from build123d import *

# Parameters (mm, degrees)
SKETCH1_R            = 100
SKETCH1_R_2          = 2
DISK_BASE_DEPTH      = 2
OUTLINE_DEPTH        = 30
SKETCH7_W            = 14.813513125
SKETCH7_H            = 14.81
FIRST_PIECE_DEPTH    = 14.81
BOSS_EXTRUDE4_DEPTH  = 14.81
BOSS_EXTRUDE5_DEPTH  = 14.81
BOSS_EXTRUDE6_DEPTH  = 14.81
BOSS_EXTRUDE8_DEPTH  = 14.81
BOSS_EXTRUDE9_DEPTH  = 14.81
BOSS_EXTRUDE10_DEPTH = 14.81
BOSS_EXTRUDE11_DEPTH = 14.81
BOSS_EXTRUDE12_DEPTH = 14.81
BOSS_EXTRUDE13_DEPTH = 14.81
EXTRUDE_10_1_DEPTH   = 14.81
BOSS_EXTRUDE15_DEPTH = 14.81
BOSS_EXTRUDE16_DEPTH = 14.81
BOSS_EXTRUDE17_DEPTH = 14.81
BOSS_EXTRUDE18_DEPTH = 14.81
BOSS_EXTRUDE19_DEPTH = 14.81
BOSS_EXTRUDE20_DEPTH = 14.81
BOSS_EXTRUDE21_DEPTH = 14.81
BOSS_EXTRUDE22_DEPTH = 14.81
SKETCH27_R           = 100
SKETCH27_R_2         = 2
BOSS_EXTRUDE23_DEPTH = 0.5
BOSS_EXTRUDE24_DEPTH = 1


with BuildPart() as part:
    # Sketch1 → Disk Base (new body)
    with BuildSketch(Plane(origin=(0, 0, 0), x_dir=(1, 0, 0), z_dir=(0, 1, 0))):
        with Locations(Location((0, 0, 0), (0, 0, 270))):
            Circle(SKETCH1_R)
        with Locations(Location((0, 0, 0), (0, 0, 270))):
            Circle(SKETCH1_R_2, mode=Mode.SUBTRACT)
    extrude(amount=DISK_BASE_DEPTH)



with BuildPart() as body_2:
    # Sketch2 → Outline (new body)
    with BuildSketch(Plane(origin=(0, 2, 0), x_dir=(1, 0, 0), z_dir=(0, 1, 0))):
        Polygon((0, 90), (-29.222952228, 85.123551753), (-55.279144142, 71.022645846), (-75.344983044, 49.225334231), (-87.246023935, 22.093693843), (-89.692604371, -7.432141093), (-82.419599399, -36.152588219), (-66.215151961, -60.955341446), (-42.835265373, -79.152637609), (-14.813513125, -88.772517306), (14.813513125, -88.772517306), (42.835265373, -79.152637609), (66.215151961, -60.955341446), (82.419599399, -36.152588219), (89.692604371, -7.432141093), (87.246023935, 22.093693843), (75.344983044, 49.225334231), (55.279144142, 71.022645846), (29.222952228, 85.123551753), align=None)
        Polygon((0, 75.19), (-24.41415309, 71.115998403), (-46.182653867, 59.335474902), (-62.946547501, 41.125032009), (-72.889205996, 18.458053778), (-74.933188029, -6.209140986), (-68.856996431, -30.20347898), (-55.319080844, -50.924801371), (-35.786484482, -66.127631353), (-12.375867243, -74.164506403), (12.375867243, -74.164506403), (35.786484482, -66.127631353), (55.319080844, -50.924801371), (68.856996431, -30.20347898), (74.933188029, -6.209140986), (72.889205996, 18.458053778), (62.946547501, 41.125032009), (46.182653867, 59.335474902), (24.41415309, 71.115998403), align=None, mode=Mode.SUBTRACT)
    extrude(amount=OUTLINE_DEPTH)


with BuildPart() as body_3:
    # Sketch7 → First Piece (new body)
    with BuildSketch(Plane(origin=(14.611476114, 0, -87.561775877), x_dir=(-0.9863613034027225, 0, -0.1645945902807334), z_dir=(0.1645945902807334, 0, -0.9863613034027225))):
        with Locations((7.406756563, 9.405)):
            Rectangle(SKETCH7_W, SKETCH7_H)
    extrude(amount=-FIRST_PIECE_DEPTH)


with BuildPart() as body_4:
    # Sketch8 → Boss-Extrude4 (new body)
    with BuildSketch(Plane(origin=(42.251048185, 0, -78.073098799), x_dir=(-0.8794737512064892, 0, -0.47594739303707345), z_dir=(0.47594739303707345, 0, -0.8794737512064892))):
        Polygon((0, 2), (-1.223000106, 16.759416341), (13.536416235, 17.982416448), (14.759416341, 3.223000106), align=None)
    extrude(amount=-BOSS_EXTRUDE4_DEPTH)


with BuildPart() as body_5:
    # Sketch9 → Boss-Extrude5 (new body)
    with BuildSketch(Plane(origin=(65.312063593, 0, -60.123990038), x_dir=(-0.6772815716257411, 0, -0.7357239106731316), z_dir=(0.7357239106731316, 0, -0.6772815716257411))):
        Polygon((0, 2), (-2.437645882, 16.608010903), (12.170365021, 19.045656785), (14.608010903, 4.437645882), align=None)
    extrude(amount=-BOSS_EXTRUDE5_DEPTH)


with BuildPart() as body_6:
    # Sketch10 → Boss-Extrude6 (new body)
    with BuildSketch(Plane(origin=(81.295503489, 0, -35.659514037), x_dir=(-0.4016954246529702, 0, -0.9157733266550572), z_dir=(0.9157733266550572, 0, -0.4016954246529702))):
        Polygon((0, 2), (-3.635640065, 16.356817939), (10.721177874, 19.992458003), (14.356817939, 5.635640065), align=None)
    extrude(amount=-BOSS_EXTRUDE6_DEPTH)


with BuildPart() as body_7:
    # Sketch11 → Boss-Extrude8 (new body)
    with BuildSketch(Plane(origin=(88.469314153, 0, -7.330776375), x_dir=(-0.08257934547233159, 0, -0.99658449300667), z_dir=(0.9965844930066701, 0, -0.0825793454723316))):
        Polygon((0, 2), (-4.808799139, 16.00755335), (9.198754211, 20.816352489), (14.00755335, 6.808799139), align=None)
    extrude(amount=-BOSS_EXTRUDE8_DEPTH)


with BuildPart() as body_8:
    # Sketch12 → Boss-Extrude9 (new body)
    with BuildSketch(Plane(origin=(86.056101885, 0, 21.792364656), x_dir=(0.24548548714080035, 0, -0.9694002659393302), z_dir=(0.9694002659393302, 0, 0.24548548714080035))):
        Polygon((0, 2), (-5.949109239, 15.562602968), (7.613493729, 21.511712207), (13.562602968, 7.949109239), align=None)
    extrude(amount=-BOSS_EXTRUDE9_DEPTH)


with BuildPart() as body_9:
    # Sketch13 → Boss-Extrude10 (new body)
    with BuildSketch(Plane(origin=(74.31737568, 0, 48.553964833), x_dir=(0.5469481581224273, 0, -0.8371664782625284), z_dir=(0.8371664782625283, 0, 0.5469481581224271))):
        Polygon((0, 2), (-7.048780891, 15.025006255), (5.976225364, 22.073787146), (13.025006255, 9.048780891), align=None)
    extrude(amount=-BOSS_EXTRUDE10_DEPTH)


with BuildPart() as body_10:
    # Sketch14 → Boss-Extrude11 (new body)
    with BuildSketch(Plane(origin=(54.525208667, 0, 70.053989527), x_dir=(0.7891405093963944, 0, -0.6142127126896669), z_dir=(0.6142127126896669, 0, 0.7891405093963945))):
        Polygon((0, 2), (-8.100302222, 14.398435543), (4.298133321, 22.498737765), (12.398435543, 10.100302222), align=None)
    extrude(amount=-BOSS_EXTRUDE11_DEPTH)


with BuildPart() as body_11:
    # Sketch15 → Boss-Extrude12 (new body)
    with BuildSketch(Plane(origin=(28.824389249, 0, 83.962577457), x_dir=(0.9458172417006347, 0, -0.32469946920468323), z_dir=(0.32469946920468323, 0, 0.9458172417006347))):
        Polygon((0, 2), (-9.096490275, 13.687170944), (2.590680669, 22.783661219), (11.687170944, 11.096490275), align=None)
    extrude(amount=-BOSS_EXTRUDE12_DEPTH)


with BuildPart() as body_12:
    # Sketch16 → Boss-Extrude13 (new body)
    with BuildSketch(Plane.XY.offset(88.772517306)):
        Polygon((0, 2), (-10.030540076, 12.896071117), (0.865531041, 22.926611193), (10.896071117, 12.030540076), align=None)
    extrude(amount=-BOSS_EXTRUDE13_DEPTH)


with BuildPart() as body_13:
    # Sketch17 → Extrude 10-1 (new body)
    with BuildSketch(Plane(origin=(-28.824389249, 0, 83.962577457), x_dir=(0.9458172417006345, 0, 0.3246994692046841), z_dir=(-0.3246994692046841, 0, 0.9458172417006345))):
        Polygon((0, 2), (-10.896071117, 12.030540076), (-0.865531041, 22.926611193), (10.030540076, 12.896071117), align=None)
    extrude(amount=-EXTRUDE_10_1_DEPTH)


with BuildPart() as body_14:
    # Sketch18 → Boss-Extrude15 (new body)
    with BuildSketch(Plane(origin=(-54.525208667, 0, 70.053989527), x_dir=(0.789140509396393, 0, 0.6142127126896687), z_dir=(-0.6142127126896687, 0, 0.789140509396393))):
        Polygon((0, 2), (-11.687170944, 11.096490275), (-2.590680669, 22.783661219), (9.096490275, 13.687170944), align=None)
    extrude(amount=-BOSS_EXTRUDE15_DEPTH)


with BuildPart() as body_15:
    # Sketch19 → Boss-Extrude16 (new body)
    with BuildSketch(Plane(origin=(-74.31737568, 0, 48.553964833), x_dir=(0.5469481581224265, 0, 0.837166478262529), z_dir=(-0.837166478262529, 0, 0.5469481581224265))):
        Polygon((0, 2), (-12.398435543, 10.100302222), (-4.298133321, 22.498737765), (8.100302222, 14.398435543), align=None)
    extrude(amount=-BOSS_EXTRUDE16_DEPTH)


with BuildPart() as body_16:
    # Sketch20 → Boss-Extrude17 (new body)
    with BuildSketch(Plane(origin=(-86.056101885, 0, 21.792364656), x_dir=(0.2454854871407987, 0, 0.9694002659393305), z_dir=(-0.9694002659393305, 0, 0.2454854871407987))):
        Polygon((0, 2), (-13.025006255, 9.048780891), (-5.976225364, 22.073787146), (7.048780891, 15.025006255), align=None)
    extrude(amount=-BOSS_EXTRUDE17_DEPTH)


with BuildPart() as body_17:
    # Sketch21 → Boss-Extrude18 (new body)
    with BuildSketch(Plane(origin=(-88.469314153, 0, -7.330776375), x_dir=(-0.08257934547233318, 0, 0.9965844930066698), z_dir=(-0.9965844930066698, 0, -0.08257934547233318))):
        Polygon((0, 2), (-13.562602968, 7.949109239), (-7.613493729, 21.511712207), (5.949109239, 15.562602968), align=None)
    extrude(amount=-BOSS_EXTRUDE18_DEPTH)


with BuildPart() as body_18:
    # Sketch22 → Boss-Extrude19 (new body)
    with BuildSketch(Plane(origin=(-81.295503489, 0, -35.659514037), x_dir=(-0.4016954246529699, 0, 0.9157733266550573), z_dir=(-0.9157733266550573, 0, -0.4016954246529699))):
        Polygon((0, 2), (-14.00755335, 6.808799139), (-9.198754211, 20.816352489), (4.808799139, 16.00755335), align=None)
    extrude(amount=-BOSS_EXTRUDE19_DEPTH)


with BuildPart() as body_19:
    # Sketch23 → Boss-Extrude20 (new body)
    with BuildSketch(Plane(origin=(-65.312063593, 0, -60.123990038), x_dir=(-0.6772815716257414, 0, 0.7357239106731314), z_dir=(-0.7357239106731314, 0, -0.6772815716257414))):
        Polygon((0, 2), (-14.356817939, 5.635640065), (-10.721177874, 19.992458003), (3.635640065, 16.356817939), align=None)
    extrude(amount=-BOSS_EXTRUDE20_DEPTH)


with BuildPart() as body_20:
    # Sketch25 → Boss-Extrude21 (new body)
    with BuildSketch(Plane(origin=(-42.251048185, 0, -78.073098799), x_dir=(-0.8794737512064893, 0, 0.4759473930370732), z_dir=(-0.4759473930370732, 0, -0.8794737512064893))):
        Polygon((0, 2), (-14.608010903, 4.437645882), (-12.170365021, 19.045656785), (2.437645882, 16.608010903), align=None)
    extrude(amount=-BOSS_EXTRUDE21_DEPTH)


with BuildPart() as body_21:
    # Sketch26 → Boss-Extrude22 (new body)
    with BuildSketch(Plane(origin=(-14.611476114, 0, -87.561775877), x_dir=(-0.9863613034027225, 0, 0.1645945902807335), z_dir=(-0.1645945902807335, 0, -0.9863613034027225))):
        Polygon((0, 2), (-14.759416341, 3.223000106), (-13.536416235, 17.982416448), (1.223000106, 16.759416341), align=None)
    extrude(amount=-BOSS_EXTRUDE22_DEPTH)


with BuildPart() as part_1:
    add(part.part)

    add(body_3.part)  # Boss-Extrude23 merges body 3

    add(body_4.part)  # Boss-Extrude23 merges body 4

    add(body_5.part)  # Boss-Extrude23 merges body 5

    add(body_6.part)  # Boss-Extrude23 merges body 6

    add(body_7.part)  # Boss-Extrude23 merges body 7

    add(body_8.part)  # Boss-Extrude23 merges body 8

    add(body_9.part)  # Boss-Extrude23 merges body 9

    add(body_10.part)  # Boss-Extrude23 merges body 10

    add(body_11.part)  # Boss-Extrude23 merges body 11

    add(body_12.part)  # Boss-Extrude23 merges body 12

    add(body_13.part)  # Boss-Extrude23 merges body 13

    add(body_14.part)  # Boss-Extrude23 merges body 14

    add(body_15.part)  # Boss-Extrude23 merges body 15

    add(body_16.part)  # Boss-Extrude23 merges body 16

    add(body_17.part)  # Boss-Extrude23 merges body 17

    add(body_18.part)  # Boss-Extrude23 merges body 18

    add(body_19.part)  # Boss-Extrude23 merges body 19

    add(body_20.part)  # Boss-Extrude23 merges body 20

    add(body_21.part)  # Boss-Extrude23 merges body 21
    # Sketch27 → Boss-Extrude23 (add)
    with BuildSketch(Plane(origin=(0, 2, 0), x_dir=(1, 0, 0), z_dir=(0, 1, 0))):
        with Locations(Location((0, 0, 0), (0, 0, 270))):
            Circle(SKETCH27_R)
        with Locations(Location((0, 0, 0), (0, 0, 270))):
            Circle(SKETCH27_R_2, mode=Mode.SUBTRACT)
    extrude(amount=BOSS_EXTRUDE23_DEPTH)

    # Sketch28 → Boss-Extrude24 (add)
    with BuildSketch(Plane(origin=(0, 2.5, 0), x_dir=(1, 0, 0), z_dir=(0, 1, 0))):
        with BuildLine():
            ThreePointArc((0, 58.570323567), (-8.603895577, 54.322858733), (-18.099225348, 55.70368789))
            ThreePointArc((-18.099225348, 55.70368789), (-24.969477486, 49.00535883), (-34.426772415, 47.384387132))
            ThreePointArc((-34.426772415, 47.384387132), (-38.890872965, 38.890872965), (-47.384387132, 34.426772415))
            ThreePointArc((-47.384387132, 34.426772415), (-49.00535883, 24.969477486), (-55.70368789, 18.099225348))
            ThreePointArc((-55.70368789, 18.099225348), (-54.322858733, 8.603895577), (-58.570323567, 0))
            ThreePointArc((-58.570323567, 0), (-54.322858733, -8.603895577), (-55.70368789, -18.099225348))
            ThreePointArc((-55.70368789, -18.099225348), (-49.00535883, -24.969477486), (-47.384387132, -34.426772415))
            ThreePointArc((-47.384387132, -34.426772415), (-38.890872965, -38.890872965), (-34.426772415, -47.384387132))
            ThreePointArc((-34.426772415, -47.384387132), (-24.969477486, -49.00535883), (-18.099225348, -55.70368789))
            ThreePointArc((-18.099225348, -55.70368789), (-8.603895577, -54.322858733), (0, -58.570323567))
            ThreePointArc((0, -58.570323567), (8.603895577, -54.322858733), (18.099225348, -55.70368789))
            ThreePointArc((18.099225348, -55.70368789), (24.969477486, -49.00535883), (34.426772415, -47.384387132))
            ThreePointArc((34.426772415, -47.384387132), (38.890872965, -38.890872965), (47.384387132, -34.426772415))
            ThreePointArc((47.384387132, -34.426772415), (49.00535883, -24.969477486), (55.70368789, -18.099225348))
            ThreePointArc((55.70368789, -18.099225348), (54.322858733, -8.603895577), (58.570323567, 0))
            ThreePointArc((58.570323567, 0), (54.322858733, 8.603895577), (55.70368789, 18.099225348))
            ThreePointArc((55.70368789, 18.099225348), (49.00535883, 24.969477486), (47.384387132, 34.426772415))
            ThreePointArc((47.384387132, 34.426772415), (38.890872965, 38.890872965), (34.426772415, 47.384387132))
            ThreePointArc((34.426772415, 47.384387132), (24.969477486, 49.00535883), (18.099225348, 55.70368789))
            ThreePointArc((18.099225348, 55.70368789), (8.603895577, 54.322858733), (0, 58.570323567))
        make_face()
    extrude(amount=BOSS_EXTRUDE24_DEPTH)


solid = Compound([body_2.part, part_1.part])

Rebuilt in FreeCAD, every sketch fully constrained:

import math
import FreeCAD as App
import Part
import Sketcher
from FreeCAD import Vector


def add_polygon(sketch, points):
    """Adds a closed chain of lines whose ends are joined by coincident constraints."""
    first, n = sketch.GeometryCount, len(points)
    for a, b in zip(points, points[1:] + points[:1]):
        sketch.addGeometry(Part.LineSegment(App.Vector(*a, 0), App.Vector(*b, 0)), False)
    for i in range(n):
        sketch.addConstraint(Sketcher.Constraint("Coincident", first + i, 2, first + (i + 1) % n, 1))

doc = App.newDocument("Part")
body = doc.addObject("PartDesign::Body", "Body")

# Sketch on XZ plane
sketch1 = body.newObject("Sketcher::SketchObject", "Sketch")
sketch1.AttachmentSupport = (doc.getObject("XZ_Plane"), [""])
sketch1.MapMode = "FlatFace"
sketch1.addGeometry([
    Part.Circle(Vector(0, 0, 0), Vector(0, 0, 1), 100),
    Part.Circle(Vector(0, 0, 0), Vector(0, 0, 1), 2),
], False)
sketch1.addConstraint([
    Sketcher.Constraint("Coincident", 0, 3, -1, 1),
    Sketcher.Constraint("Coincident", 1, 3, -1, 1),
    Sketcher.Constraint("Diameter", 0, 200.0),
    Sketcher.Constraint("Diameter", 1, 4.0),
])
pad1 = body.newObject("PartDesign::Pad", "Pad")
pad1.Profile = sketch1
pad1.Length = 2
pad1.Reversed = True
body2 = doc.addObject("PartDesign::Body", "Body001")

# Sketch on XZ plane
sketch2 = body2.newObject("Sketcher::SketchObject", "Sketch001")
sketch2.AttachmentSupport = (doc.getObject("XZ_Plane001"), [""])
sketch2.MapMode = "FlatFace"
sketch2.AttachmentOffset = App.Placement(Vector(0, 0, -2), App.Rotation())
add_polygon(sketch2, [(0, -90), (-29, -85), (-55, -71), (-75, -49), (-87, -22), (-90, 7), (-82, 36), (-66, 61), (-43, 79), (-15, 89), (15, 89), (43, 79), (66, 61), (82, 36), (90, 7), (87, -22), (75, -49), (55, -71), (29, -85)])  # lines 0-18
add_polygon(sketch2, [(-24, -71), (0, -75), (24, -71), (46, -59), (63, -41), (73, -18), (75, 6), (69, 30), (55, 51), (36, 66), (12, 74), (-12, 74), (-36, 66), (-55, 51), (-69, 30), (-75, 6), (-73, -18), (-63, -41), (-46, -59)])  # lines 19-37
sketch2.addConstraint([
    Sketcher.Constraint("Horizontal", 9),
    Sketcher.Constraint("Horizontal", 29),
    Sketcher.Constraint("Symmetric", 7, 2, 10, 2, -2),
    Sketcher.Constraint("Symmetric", 6, 2, 11, 2, -2),
    Sketcher.Constraint("Symmetric", 5, 2, 12, 2, -2),
    Sketcher.Constraint("Symmetric", 4, 2, 13, 2, -2),
    Sketcher.Constraint("Symmetric", 3, 2, 14, 2, -2),
    Sketcher.Constraint("Symmetric", 2, 2, 15, 2, -2),
    Sketcher.Constraint("Symmetric", 1, 2, 16, 2, -2),
    Sketcher.Constraint("Symmetric", 0, 2, 17, 2, -2),
    Sketcher.Constraint("Symmetric", 27, 2, 30, 2, -2),
    Sketcher.Constraint("Symmetric", 26, 2, 31, 2, -2),
    Sketcher.Constraint("Symmetric", 25, 2, 32, 2, -2),
    Sketcher.Constraint("Symmetric", 24, 2, 33, 2, -2),
    Sketcher.Constraint("Symmetric", 23, 2, 34, 2, -2),
    Sketcher.Constraint("Symmetric", 22, 2, 35, 2, -2),
    Sketcher.Constraint("Symmetric", 21, 2, 36, 2, -2),
    Sketcher.Constraint("Symmetric", 20, 2, 37, 2, -2),
    Sketcher.Constraint("PointOnObject", 18, 2, -2),
    Sketcher.Constraint("PointOnObject", 19, 2, -2),
    Sketcher.Constraint("Parallel", 0, 19),
    Sketcher.Constraint("Parallel", 17, 21),
    Sketcher.Constraint("Parallel", 16, 22),
    Sketcher.Constraint("Parallel", 15, 23),
    Sketcher.Constraint("Parallel", 14, 24),
    Sketcher.Constraint("Parallel", 13, 25),
    Sketcher.Constraint("Parallel", 12, 26),
    Sketcher.Constraint("Parallel", 11, 27),
    Sketcher.Constraint("Parallel", 10, 28),
    Sketcher.Constraint("Parallel", 8, 30),
    Sketcher.Constraint("Equal", 0, 1),
    Sketcher.Constraint("Equal", 1, 2),
    Sketcher.Constraint("Equal", 2, 3),
    Sketcher.Constraint("Equal", 3, 4),
    Sketcher.Constraint("Equal", 4, 5),
    Sketcher.Constraint("Equal", 5, 6),
    Sketcher.Constraint("Equal", 6, 7),
    Sketcher.Constraint("Equal", 7, 8),
    Sketcher.Constraint("Equal", 8, 10),
    Sketcher.Constraint("Equal", 20, 21),
    Sketcher.Constraint("Equal", 21, 22),
    Sketcher.Constraint("Equal", 22, 23),
    Sketcher.Constraint("Equal", 23, 24),
    Sketcher.Constraint("Equal", 24, 25),
    Sketcher.Constraint("Equal", 25, 26),
    Sketcher.Constraint("Equal", 26, 27),
    Sketcher.Constraint("Equal", 27, 28),
    Sketcher.Constraint("DistanceY", 18, 2, -1, 1, 90.0),
    Sketcher.Constraint("DistanceY", 19, 2, -1, 1, 75.19),
    Sketcher.Constraint("DistanceY", 20, 2, -1, 1, 71.115998),
    Sketcher.Constraint("DistanceY", 24, 2, 13, 2, 1.223),
    Sketcher.Constraint("DistanceX", 5, 2, -1, 1, 82.419599),
    Sketcher.Constraint("DistanceY", -1, 1, 26, 2, 50.924801),
    Sketcher.Constraint("DistanceY", 4, 2, 6, 2, 53.5232),
    Sketcher.Constraint("DistanceX", 20, 2, 17, 2, 4.808799),
    Sketcher.Constraint("DistanceX", 20, 2, 21, 2, 21.768501),
    Sketcher.Constraint("DistanceX", 23, 2, 13, 2, 16.803398),
    Sketcher.Constraint("DistanceX", 28, 2, 10, 2, 30.459398),
    Sketcher.Constraint("DistanceX", 9, 1, 9, 2, 29.627026),
    Sketcher.Constraint("DistanceY", -1, 1, 5, 2, 36.152588),
])
pad2 = body2.newObject("PartDesign::Pad", "Pad001")
pad2.Profile = sketch2
pad2.Length = 30
pad2.Reversed = True
body3 = doc.addObject("PartDesign::Body", "Body002")

# Sketch on an angled plane
sketch3 = body3.newObject("Sketcher::SketchObject", "Sketch002")
sketch3.Placement = App.Placement(Vector(14.611476, 0, -87.561776), App.Rotation(Vector(-0.986361303, 0, -0.16459459), Vector(0, 0.999999999, 0), Vector(0.16459459, 0, -0.986361303), "ZXY"))
add_polygon(sketch3, [(0, 17), (0, 2), (15, 2), (15, 17)])  # lines 0-3
sketch3.addConstraint([
    Sketcher.Constraint("Vertical", 0),
    Sketcher.Constraint("Horizontal", 1),
    Sketcher.Constraint("Vertical", 2),
    Sketcher.Constraint("Horizontal", 3),
    Sketcher.Constraint("PointOnObject", 0, 2, -2),
    Sketcher.Constraint("DistanceY", -1, 1, 0, 2, 2.0),
    Sketcher.Constraint("DistanceY", 0, 2, 0, 1, 14.81),
    Sketcher.Constraint("DistanceX", 1, 1, 1, 2, 14.813513),
])
pad3 = body3.newObject("PartDesign::Pad", "Pad002")
pad3.Profile = sketch3
pad3.Length = 14.81
pad3.Reversed = True
body4 = doc.addObject("PartDesign::Body", "Body003")

# Sketch on an angled plane
sketch4 = body4.newObject("Sketcher::SketchObject", "Sketch003")
sketch4.Placement = App.Placement(Vector(42.251048, 0, -78.073099), App.Rotation(Vector(-0.879473751, 0, -0.475947393), Vector(0, 1, 0), Vector(0.475947393, 0, -0.879473751), "ZXY"))
add_polygon(sketch4, [(-1, 17), (0, 2), (15, 3), (14, 18)])  # lines 0-3
sketch4.addConstraint([
    Sketcher.Constraint("PointOnObject", 0, 2, -2),
    Sketcher.Constraint("Perpendicular", 0, 1),
    Sketcher.Constraint("Perpendicular", 1, 2),
    Sketcher.Constraint("Perpendicular", 2, 3),
    Sketcher.Constraint("Equal", 0, 1),
    Sketcher.Constraint("DistanceY", -1, 1, 0, 2, 2.0),
    Sketcher.Constraint("Distance", 0, 14.81),
    Sketcher.Constraint("DistanceY", -1, 1, 1, 2, 3.223),
])
pad4 = body4.newObject("PartDesign::Pad", "Pad003")
pad4.Profile = sketch4
pad4.Length = 14.81
pad4.Reversed = True
body5 = doc.addObject("PartDesign::Body", "Body004")

# Sketch on an angled plane
sketch5 = body5.newObject("Sketcher::SketchObject", "Sketch004")
sketch5.Placement = App.Placement(Vector(65.312064, 0, -60.12399), App.Rotation(Vector(-0.677281572, 0, -0.735723911), Vector(0, 1.000000001, 0), Vector(0.735723911, 0, -0.677281572), "ZXY"))
add_polygon(sketch5, [(-2, 17), (0, 2), (15, 4), (12, 19)])  # lines 0-3
sketch5.addConstraint([
    Sketcher.Constraint("PointOnObject", 0, 2, -2),
    Sketcher.Constraint("Perpendicular", 0, 1),
    Sketcher.Constraint("Perpendicular", 1, 2),
    Sketcher.Constraint("Perpendicular", 2, 3),
    Sketcher.Constraint("Equal", 0, 1),
    Sketcher.Constraint("DistanceY", -1, 1, 0, 2, 2.0),
    Sketcher.Constraint("Distance", 0, 14.81),
    Sketcher.Constraint("DistanceX", -1, 1, 1, 2, 14.608011),
])
pad5 = body5.newObject("PartDesign::Pad", "Pad004")
pad5.Profile = sketch5
pad5.Length = 14.81
pad5.Reversed = True
body6 = doc.addObject("PartDesign::Body", "Body005")

# Sketch on an angled plane
sketch6 = body6.newObject("Sketcher::SketchObject", "Sketch005")
sketch6.Placement = App.Placement(Vector(81.295503, 0, -35.659514), App.Rotation(Vector(-0.401695425, 0, -0.915773327), Vector(0, 1.000000001, 0), Vector(0.915773327, 0, -0.401695425), "ZXY"))
add_polygon(sketch6, [(-4, 16), (0, 2), (14, 6), (11, 20)])  # lines 0-3
sketch6.addConstraint([
    Sketcher.Constraint("PointOnObject", 0, 2, -2),
    Sketcher.Constraint("Perpendicular", 0, 1),
    Sketcher.Constraint("Perpendicular", 1, 2),
    Sketcher.Constraint("Perpendicular", 2, 3),
    Sketcher.Constraint("Equal", 0, 1),
    Sketcher.Constraint("DistanceY", -1, 1, 0, 2, 2.0),
    Sketcher.Constraint("Distance", 0, 14.81),
    Sketcher.Constraint("DistanceY", -1, 1, 1, 2, 5.63564),
])
pad6 = body6.newObject("PartDesign::Pad", "Pad005")
pad6.Profile = sketch6
pad6.Length = 14.81
pad6.Reversed = True
body7 = doc.addObject("PartDesign::Body", "Body006")

# Sketch on an angled plane
sketch7 = body7.newObject("Sketcher::SketchObject", "Sketch006")
sketch7.Placement = App.Placement(Vector(88.469314, 0, -7.330776), App.Rotation(Vector(-0.082579345, 0, -0.996584493), Vector(0, 1, 0), Vector(0.996584493, 0, -0.082579345), "ZXY"))
add_polygon(sketch7, [(-5, 16), (0, 2), (14, 7), (9, 21)])  # lines 0-3
sketch7.addConstraint([
    Sketcher.Constraint("PointOnObject", 0, 2, -2),
    Sketcher.Constraint("Perpendicular", 0, 1),
    Sketcher.Constraint("Perpendicular", 1, 2),
    Sketcher.Constraint("Perpendicular", 2, 3),
    Sketcher.Constraint("Equal", 0, 1),
    Sketcher.Constraint("DistanceY", -1, 1, 0, 2, 2.0),
    Sketcher.Constraint("Distance", 0, 14.81),
    Sketcher.Constraint("DistanceY", -1, 1, 1, 2, 6.808799),
])
pad7 = body7.newObject("PartDesign::Pad", "Pad006")
pad7.Profile = sketch7
pad7.Length = 14.81
pad7.Reversed = True
body8 = doc.addObject("PartDesign::Body", "Body007")

# Sketch on an angled plane
sketch8 = body8.newObject("Sketcher::SketchObject", "Sketch007")
sketch8.Placement = App.Placement(Vector(86.056102, 0, 21.792365), App.Rotation(Vector(0.245485487, 0, -0.969400266), Vector(0, 1, 0), Vector(0.969400266, 0, 0.245485487), "ZXY"))
add_polygon(sketch8, [(-6, 16), (0, 2), (14, 8), (8, 22)])  # lines 0-3
sketch8.addConstraint([
    Sketcher.Constraint("PointOnObject", 0, 2, -2),
    Sketcher.Constraint("Perpendicular", 0, 1),
    Sketcher.Constraint("Perpendicular", 1, 2),
    Sketcher.Constraint("Perpendicular", 2, 3),
    Sketcher.Constraint("Equal", 0, 1),
    Sketcher.Constraint("DistanceY", -1, 1, 0, 2, 2.0),
    Sketcher.Constraint("Distance", 0, 14.81),
    Sketcher.Constraint("DistanceY", -1, 1, 1, 2, 7.949109),
])
pad8 = body8.newObject("PartDesign::Pad", "Pad007")
pad8.Profile = sketch8
pad8.Length = 14.81
pad8.Reversed = True
body9 = doc.addObject("PartDesign::Body", "Body008")

# Sketch on an angled plane
sketch9 = body9.newObject("Sketcher::SketchObject", "Sketch008")
sketch9.Placement = App.Placement(Vector(74.317376, 0, 48.553965), App.Rotation(Vector(0.546948158, 0, -0.837166478), Vector(0, 0.999999999, 0), Vector(0.837166478, 0, 0.546948158), "ZXY"))
add_polygon(sketch9, [(-7, 15), (0, 2), (13, 9), (6, 22)])  # lines 0-3
sketch9.addConstraint([
    Sketcher.Constraint("PointOnObject", 0, 2, -2),
    Sketcher.Constraint("Perpendicular", 0, 1),
    Sketcher.Constraint("Perpendicular", 1, 2),
    Sketcher.Constraint("Perpendicular", 2, 3),
    Sketcher.Constraint("Equal", 0, 1),
    Sketcher.Constraint("DistanceY", -1, 1, 0, 2, 2.0),
    Sketcher.Constraint("Distance", 0, 14.81),
    Sketcher.Constraint("DistanceY", -1, 1, 1, 2, 9.048781),
])
pad9 = body9.newObject("PartDesign::Pad", "Pad008")
pad9.Profile = sketch9
pad9.Length = 14.81
pad9.Reversed = True
body10 = doc.addObject("PartDesign::Body", "Body009")

# Sketch on an angled plane
sketch10 = body10.newObject("Sketcher::SketchObject", "Sketch009")
sketch10.Placement = App.Placement(Vector(54.525209, 0, 70.05399), App.Rotation(Vector(0.789140509, 0, -0.614212713), Vector(0, 1, 0), Vector(0.614212713, 0, 0.789140509), "ZXY"))
add_polygon(sketch10, [(-8, 14), (0, 2), (12, 10), (4, 22)])  # lines 0-3
sketch10.addConstraint([
    Sketcher.Constraint("PointOnObject", 0, 2, -2),
    Sketcher.Constraint("Perpendicular", 0, 1),
    Sketcher.Constraint("Perpendicular", 1, 2),
    Sketcher.Constraint("Perpendicular", 2, 3),
    Sketcher.Constraint("Equal", 0, 1),
    Sketcher.Constraint("DistanceY", -1, 1, 0, 2, 2.0),
    Sketcher.Constraint("Distance", 0, 14.81),
    Sketcher.Constraint("DistanceX", -1, 1, 1, 2, 12.398436),
])
pad10 = body10.newObject("PartDesign::Pad", "Pad009")
pad10.Profile = sketch10
pad10.Length = 14.81
pad10.Reversed = True
body11 = doc.addObject("PartDesign::Body", "Body010")

# Sketch on an angled plane
sketch11 = body11.newObject("Sketcher::SketchObject", "Sketch010")
sketch11.Placement = App.Placement(Vector(28.824389, 0, 83.962577), App.Rotation(Vector(0.945817242, 0, -0.324699469), Vector(0, 1, 0), Vector(0.324699469, 0, 0.945817242), "ZXY"))
add_polygon(sketch11, [(-9, 14), (0, 2), (12, 11), (3, 23)])  # lines 0-3
sketch11.addConstraint([
    Sketcher.Constraint("PointOnObject", 0, 2, -2),
    Sketcher.Constraint("Perpendicular", 0, 1),
    Sketcher.Constraint("Perpendicular", 1, 2),
    Sketcher.Constraint("Perpendicular", 2, 3),
    Sketcher.Constraint("Equal", 0, 1),
    Sketcher.Constraint("DistanceY", -1, 1, 0, 2, 2.0),
    Sketcher.Constraint("Distance", 0, 14.81),
    Sketcher.Constraint("DistanceX", -1, 1, 1, 2, 11.687171),
])
pad11 = body11.newObject("PartDesign::Pad", "Pad010")
pad11.Profile = sketch11
pad11.Length = 14.81
pad11.Reversed = True
body12 = doc.addObject("PartDesign::Body", "Body011")

# Sketch on XY plane
sketch12 = body12.newObject("Sketcher::SketchObject", "Sketch011")
sketch12.AttachmentSupport = (doc.getObject("XY_Plane011"), [""])
sketch12.MapMode = "FlatFace"
sketch12.AttachmentOffset = App.Placement(Vector(0, 0, 88.772517), App.Rotation())
add_polygon(sketch12, [(-10, 13), (0, 2), (11, 12), (1, 23)])  # lines 0-3
sketch12.addConstraint([
    Sketcher.Constraint("PointOnObject", 0, 2, -2),
    Sketcher.Constraint("Perpendicular", 0, 1),
    Sketcher.Constraint("Perpendicular", 1, 2),
    Sketcher.Constraint("Perpendicular", 2, 3),
    Sketcher.Constraint("Equal", 0, 1),
    Sketcher.Constraint("DistanceY", -1, 1, 0, 2, 2.0),
    Sketcher.Constraint("Distance", 0, 14.81),
    Sketcher.Constraint("DistanceX", -1, 1, 1, 2, 10.896071),
])
pad12 = body12.newObject("PartDesign::Pad", "Pad011")
pad12.Profile = sketch12
pad12.Length = 14.81
pad12.Reversed = True
body13 = doc.addObject("PartDesign::Body", "Body012")

# Sketch on an angled plane
sketch13 = body13.newObject("Sketcher::SketchObject", "Sketch012")
sketch13.Placement = App.Placement(Vector(-28.824389, 0, 83.962577), App.Rotation(Vector(0.945817242, 0, 0.324699469), Vector(0, 1, 0), Vector(-0.324699469, 0, 0.945817242), "ZXY"))
add_polygon(sketch13, [(-11, 12), (0, 2), (10, 13), (-1, 23)])  # lines 0-3
sketch13.addConstraint([
    Sketcher.Constraint("PointOnObject", 0, 2, -2),
    Sketcher.Constraint("Perpendicular", 0, 1),
    Sketcher.Constraint("Perpendicular", 1, 2),
    Sketcher.Constraint("Perpendicular", 2, 3),
    Sketcher.Constraint("Equal", 0, 1),
    Sketcher.Constraint("DistanceY", -1, 1, 0, 2, 2.0),
    Sketcher.Constraint("Distance", 0, 14.81),
    Sketcher.Constraint("DistanceX", -1, 1, 1, 2, 10.03054),
])
pad13 = body13.newObject("PartDesign::Pad", "Pad012")
pad13.Profile = sketch13
pad13.Length = 14.81
pad13.Reversed = True
body14 = doc.addObject("PartDesign::Body", "Body013")

# Sketch on an angled plane
sketch14 = body14.newObject("Sketcher::SketchObject", "Sketch013")
sketch14.Placement = App.Placement(Vector(-54.525209, 0, 70.05399), App.Rotation(Vector(0.789140509, 0, 0.614212713), Vector(0, 1, 0), Vector(-0.614212713, 0, 0.789140509), "ZXY"))
add_polygon(sketch14, [(-12, 11), (0, 2), (9, 14), (-3, 23)])  # lines 0-3
sketch14.addConstraint([
    Sketcher.Constraint("PointOnObject", 0, 2, -2),
    Sketcher.Constraint("Perpendicular", 0, 1),
    Sketcher.Constraint("Perpendicular", 1, 2),
    Sketcher.Constraint("Perpendicular", 2, 3),
    Sketcher.Constraint("Equal", 0, 1),
    Sketcher.Constraint("DistanceY", -1, 1, 0, 2, 2.0),
    Sketcher.Constraint("Distance", 0, 14.81),
    Sketcher.Constraint("DistanceX", -1, 1, 1, 2, 9.09649),
])
pad14 = body14.newObject("PartDesign::Pad", "Pad013")
pad14.Profile = sketch14
pad14.Length = 14.81
pad14.Reversed = True
body15 = doc.addObject("PartDesign::Body", "Body014")

# Sketch on an angled plane
sketch15 = body15.newObject("Sketcher::SketchObject", "Sketch014")
sketch15.Placement = App.Placement(Vector(-74.317376, 0, 48.553965), App.Rotation(Vector(0.546948158, 0, 0.837166478), Vector(0, 0.999999999, 0), Vector(-0.837166478, 0, 0.546948158), "ZXY"))
add_polygon(sketch15, [(-12, 10), (0, 2), (8, 14), (-4, 22)])  # lines 0-3
sketch15.addConstraint([
    Sketcher.Constraint("PointOnObject", 0, 2, -2),
    Sketcher.Constraint("Perpendicular", 0, 1),
    Sketcher.Constraint("Perpendicular", 1, 2),
    Sketcher.Constraint("Perpendicular", 2, 3),
    Sketcher.Constraint("Equal", 0, 1),
    Sketcher.Constraint("DistanceY", -1, 1, 0, 2, 2.0),
    Sketcher.Constraint("Distance", 0, 14.81),
    Sketcher.Constraint("DistanceX", -1, 1, 1, 2, 8.100302),
])
pad15 = body15.newObject("PartDesign::Pad", "Pad014")
pad15.Profile = sketch15
pad15.Length = 14.81
pad15.Reversed = True
body16 = doc.addObject("PartDesign::Body", "Body015")

# Sketch on an angled plane
sketch16 = body16.newObject("Sketcher::SketchObject", "Sketch015")
sketch16.Placement = App.Placement(Vector(-86.056102, 0, 21.792365), App.Rotation(Vector(0.245485487, 0, 0.969400266), Vector(0, 1, 0), Vector(-0.969400266, 0, 0.245485487), "ZXY"))
add_polygon(sketch16, [(-13, 9), (0, 2), (7, 15), (-6, 22)])  # lines 0-3
sketch16.addConstraint([
    Sketcher.Constraint("PointOnObject", 0, 2, -2),
    Sketcher.Constraint("Perpendicular", 0, 1),
    Sketcher.Constraint("Perpendicular", 1, 2),
    Sketcher.Constraint("Perpendicular", 2, 3),
    Sketcher.Constraint("Equal", 0, 1),
    Sketcher.Constraint("DistanceY", -1, 1, 0, 2, 2.0),
    Sketcher.Constraint("Distance", 0, 14.81),
    Sketcher.Constraint("DistanceX", -1, 1, 1, 2, 7.048781),
])
pad16 = body16.newObject("PartDesign::Pad", "Pad015")
pad16.Profile = sketch16
pad16.Length = 14.81
pad16.Reversed = True
body17 = doc.addObject("PartDesign::Body", "Body016")

# Sketch on an angled plane
sketch17 = body17.newObject("Sketcher::SketchObject", "Sketch016")
sketch17.Placement = App.Placement(Vector(-88.469314, 0, -7.330776), App.Rotation(Vector(-0.082579345, 0, 0.996584493), Vector(0, 1, 0), Vector(-0.996584493, 0, -0.082579345), "ZXY"))
add_polygon(sketch17, [(-14, 8), (0, 2), (6, 16), (-8, 22)])  # lines 0-3
sketch17.addConstraint([
    Sketcher.Constraint("PointOnObject", 0, 2, -2),
    Sketcher.Constraint("Perpendicular", 0, 1),
    Sketcher.Constraint("Perpendicular", 1, 2),
    Sketcher.Constraint("Perpendicular", 2, 3),
    Sketcher.Constraint("Equal", 0, 1),
    Sketcher.Constraint("DistanceY", -1, 1, 0, 2, 2.0),
    Sketcher.Constraint("Distance", 0, 14.81),
    Sketcher.Constraint("DistanceX", -1, 1, 1, 2, 5.949109),
])
pad17 = body17.newObject("PartDesign::Pad", "Pad016")
pad17.Profile = sketch17
pad17.Length = 14.81
pad17.Reversed = True
body18 = doc.addObject("PartDesign::Body", "Body017")

# Sketch on an angled plane
sketch18 = body18.newObject("Sketcher::SketchObject", "Sketch017")
sketch18.Placement = App.Placement(Vector(-81.295503, 0, -35.659514), App.Rotation(Vector(-0.401695425, 0, 0.915773327), Vector(0, 1.000000001, 0), Vector(-0.915773327, 0, -0.401695425), "ZXY"))
add_polygon(sketch18, [(-14, 7), (0, 2), (5, 16), (-9, 21)])  # lines 0-3
sketch18.addConstraint([
    Sketcher.Constraint("PointOnObject", 0, 2, -2),
    Sketcher.Constraint("Perpendicular", 0, 1),
    Sketcher.Constraint("Perpendicular", 1, 2),
    Sketcher.Constraint("Perpendicular", 2, 3),
    Sketcher.Constraint("Equal", 0, 1),
    Sketcher.Constraint("DistanceY", -1, 1, 0, 2, 2.0),
    Sketcher.Constraint("Distance", 0, 14.81),
    Sketcher.Constraint("DistanceX", -1, 1, 1, 2, 4.808799),
])
pad18 = body18.newObject("PartDesign::Pad", "Pad017")
pad18.Profile = sketch18
pad18.Length = 14.81
pad18.Reversed = True
body19 = doc.addObject("PartDesign::Body", "Body018")

# Sketch on an angled plane
sketch19 = body19.newObject("Sketcher::SketchObject", "Sketch018")
sketch19.Placement = App.Placement(Vector(-65.312064, 0, -60.12399), App.Rotation(Vector(-0.677281572, 0, 0.735723911), Vector(0, 1.000000001, 0), Vector(-0.735723911, 0, -0.677281572), "ZXY"))
add_polygon(sketch19, [(-14, 6), (0, 2), (4, 16), (-11, 20)])  # lines 0-3
sketch19.addConstraint([
    Sketcher.Constraint("PointOnObject", 0, 2, -2),
    Sketcher.Constraint("Perpendicular", 0, 1),
    Sketcher.Constraint("Perpendicular", 1, 2),
    Sketcher.Constraint("Perpendicular", 2, 3),
    Sketcher.Constraint("Equal", 0, 1),
    Sketcher.Constraint("DistanceY", -1, 1, 0, 2, 2.0),
    Sketcher.Constraint("Distance", 0, 14.81),
    Sketcher.Constraint("DistanceX", -1, 1, 1, 2, 3.63564),
])
pad19 = body19.newObject("PartDesign::Pad", "Pad018")
pad19.Profile = sketch19
pad19.Length = 14.81
pad19.Reversed = True
body20 = doc.addObject("PartDesign::Body", "Body019")

# Sketch on an angled plane
sketch20 = body20.newObject("Sketcher::SketchObject", "Sketch019")
sketch20.Placement = App.Placement(Vector(-42.251048, 0, -78.073099), App.Rotation(Vector(-0.879473751, 0, 0.475947393), Vector(0, 1, 0), Vector(-0.475947393, 0, -0.879473751), "ZXY"))
add_polygon(sketch20, [(-15, 4), (0, 2), (2, 17), (-12, 19)])  # lines 0-3
sketch20.addConstraint([
    Sketcher.Constraint("PointOnObject", 0, 2, -2),
    Sketcher.Constraint("Perpendicular", 0, 1),
    Sketcher.Constraint("Perpendicular", 1, 2),
    Sketcher.Constraint("Perpendicular", 2, 3),
    Sketcher.Constraint("Equal", 0, 1),
    Sketcher.Constraint("DistanceY", -1, 1, 0, 2, 2.0),
    Sketcher.Constraint("Distance", 0, 14.81),
    Sketcher.Constraint("DistanceY", -1, 1, 1, 2, 16.608011),
])
pad20 = body20.newObject("PartDesign::Pad", "Pad019")
pad20.Profile = sketch20
pad20.Length = 14.81
pad20.Reversed = True
body21 = doc.addObject("PartDesign::Body", "Body020")

# Sketch on an angled plane
sketch21 = body21.newObject("Sketcher::SketchObject", "Sketch020")
sketch21.Placement = App.Placement(Vector(-14.611476, 0, -87.561776), App.Rotation(Vector(-0.986361303, 0, 0.16459459), Vector(0, 0.999999999, 0), Vector(-0.16459459, 0, -0.986361303), "ZXY"))
add_polygon(sketch21, [(-15, 3), (0, 2), (1, 17), (-14, 18)])  # lines 0-3
sketch21.addConstraint([
    Sketcher.Constraint("PointOnObject", 0, 2, -2),
    Sketcher.Constraint("Perpendicular", 0, 1),
    Sketcher.Constraint("Perpendicular", 1, 2),
    Sketcher.Constraint("Perpendicular", 2, 3),
    Sketcher.Constraint("Equal", 0, 1),
    Sketcher.Constraint("DistanceY", -1, 1, 0, 2, 2.0),
    Sketcher.Constraint("Distance", 0, 14.81),
    Sketcher.Constraint("DistanceX", -1, 1, 1, 2, 1.223),
])
pad21 = body21.newObject("PartDesign::Pad", "Pad020")
pad21.Profile = sketch21
pad21.Length = 14.81
pad21.Reversed = True
body.AllowCompound = True
doc.recompute()

boolean = body.newObject("PartDesign::Boolean", "Boolean")
boolean.Type = "Fuse"
boolean.addObjects([body3])
doc.recompute()

boolean2 = body.newObject("PartDesign::Boolean", "Boolean001")
boolean2.Type = "Fuse"
boolean2.addObjects([body4])
doc.recompute()

boolean3 = body.newObject("PartDesign::Boolean", "Boolean002")
boolean3.Type = "Fuse"
boolean3.addObjects([body5])
doc.recompute()

boolean4 = body.newObject("PartDesign::Boolean", "Boolean003")
boolean4.Type = "Fuse"
boolean4.addObjects([body6])
doc.recompute()

boolean5 = body.newObject("PartDesign::Boolean", "Boolean004")
boolean5.Type = "Fuse"
boolean5.addObjects([body7])
doc.recompute()

boolean6 = body.newObject("PartDesign::Boolean", "Boolean005")
boolean6.Type = "Fuse"
boolean6.addObjects([body8])
doc.recompute()

boolean7 = body.newObject("PartDesign::Boolean", "Boolean006")
boolean7.Type = "Fuse"
boolean7.addObjects([body9])
doc.recompute()

boolean8 = body.newObject("PartDesign::Boolean", "Boolean007")
boolean8.Type = "Fuse"
boolean8.addObjects([body10])
doc.recompute()

boolean9 = body.newObject("PartDesign::Boolean", "Boolean008")
boolean9.Type = "Fuse"
boolean9.addObjects([body11])
doc.recompute()

boolean10 = body.newObject("PartDesign::Boolean", "Boolean009")
boolean10.Type = "Fuse"
boolean10.addObjects([body12])
doc.recompute()

boolean11 = body.newObject("PartDesign::Boolean", "Boolean010")
boolean11.Type = "Fuse"
boolean11.addObjects([body13])
doc.recompute()

boolean12 = body.newObject("PartDesign::Boolean", "Boolean011")
boolean12.Type = "Fuse"
boolean12.addObjects([body14])
doc.recompute()

boolean13 = body.newObject("PartDesign::Boolean", "Boolean012")
boolean13.Type = "Fuse"
boolean13.addObjects([body15])
doc.recompute()

boolean14 = body.newObject("PartDesign::Boolean", "Boolean013")
boolean14.Type = "Fuse"
boolean14.addObjects([body16])
doc.recompute()

boolean15 = body.newObject("PartDesign::Boolean", "Boolean014")
boolean15.Type = "Fuse"
boolean15.addObjects([body17])
doc.recompute()

boolean16 = body.newObject("PartDesign::Boolean", "Boolean015")
boolean16.Type = "Fuse"
boolean16.addObjects([body18])
doc.recompute()

boolean17 = body.newObject("PartDesign::Boolean", "Boolean016")
boolean17.Type = "Fuse"
boolean17.addObjects([body19])
doc.recompute()

boolean18 = body.newObject("PartDesign::Boolean", "Boolean017")
boolean18.Type = "Fuse"
boolean18.addObjects([body20])
doc.recompute()

boolean19 = body.newObject("PartDesign::Boolean", "Boolean018")
boolean19.Type = "Fuse"
boolean19.addObjects([body21])

# Sketch on XZ plane
sketch22 = body.newObject("Sketcher::SketchObject", "Sketch021")
sketch22.AttachmentSupport = (doc.getObject("XZ_Plane"), [""])
sketch22.MapMode = "FlatFace"
sketch22.AttachmentOffset = App.Placement(Vector(0, 0, -2), App.Rotation())
sketch22.addGeometry([
    Part.Circle(Vector(0, 0, 0), Vector(0, 0, 1), 100),
    Part.Circle(Vector(0, 0, 0), Vector(0, 0, 1), 2),
], False)
sketch22.addConstraint([
    Sketcher.Constraint("Coincident", 0, 3, -1, 1),
    Sketcher.Constraint("Coincident", 1, 3, -1, 1),
    Sketcher.Constraint("Diameter", 0, 200.0),
    Sketcher.Constraint("Diameter", 1, 4.0),
])
pad22 = body.newObject("PartDesign::Pad", "Pad021")
pad22.Profile = sketch22
pad22.Length = 0.5
pad22.Reversed = True

# Sketch on XZ plane
sketch23 = body.newObject("Sketcher::SketchObject", "Sketch022")
sketch23.AttachmentSupport = (doc.getObject("XZ_Plane"), [""])
sketch23.MapMode = "FlatFace"
sketch23.AttachmentOffset = App.Placement(Vector(0, 0, -2.5), App.Rotation())
sketch23.addGeometry([
    Part.ArcOfCircle(Part.Circle(Vector(-11, -70, 0), Vector(0, 0, 1), 16), math.radians(46), math.radians(116)),  # 0
    Part.ArcOfCircle(Part.Circle(Vector(-32, -63, 0), Vector(0, 0, 1), 16), math.radians(28), math.radians(98)),  # 1
    Part.ArcOfCircle(Part.Circle(Vector(-50, -50, 0), Vector(0, 0, 1), 16), math.radians(10), math.radians(80)),  # 2
    Part.ArcOfCircle(Part.Circle(Vector(-63, -32, 0), Vector(0, 0, 1), 16), math.radians(-8), math.radians(62)),  # 3
    Part.ArcOfCircle(Part.Circle(Vector(-70, -11, 0), Vector(0, 0, 1), 16), math.radians(-26), math.radians(44)),  # 4
    Part.ArcOfCircle(Part.Circle(Vector(-70, 11, 0), Vector(0, 0, 1), 16), math.radians(-44), math.radians(26)),  # 5
    Part.ArcOfCircle(Part.Circle(Vector(-63, 32, 0), Vector(0, 0, 1), 16), math.radians(-62), math.radians(8)),  # 6
    Part.ArcOfCircle(Part.Circle(Vector(-50, 50, 0), Vector(0, 0, 1), 16), math.radians(-80), math.radians(-10)),  # 7
    Part.ArcOfCircle(Part.Circle(Vector(-32, 63, 0), Vector(0, 0, 1), 16), math.radians(-98), math.radians(-28)),  # 8
    Part.ArcOfCircle(Part.Circle(Vector(-11, 70, 0), Vector(0, 0, 1), 16), math.radians(-116), math.radians(-46)),  # 9
    Part.ArcOfCircle(Part.Circle(Vector(11, 70, 0), Vector(0, 0, 1), 16), math.radians(-134), math.radians(-64)),  # 10
    Part.ArcOfCircle(Part.Circle(Vector(32, 63, 0), Vector(0, 0, 1), 16), math.radians(-152), math.radians(-82)),  # 11
    Part.ArcOfCircle(Part.Circle(Vector(50, 50, 0), Vector(0, 0, 1), 16), math.radians(-170), math.radians(-100)),  # 12
    Part.ArcOfCircle(Part.Circle(Vector(63, 32, 0), Vector(0, 0, 1), 16), math.radians(172), math.radians(242)),  # 13
    Part.ArcOfCircle(Part.Circle(Vector(70, 11, 0), Vector(0, 0, 1), 16), math.radians(154), math.radians(224)),  # 14
    Part.ArcOfCircle(Part.Circle(Vector(70, -11, 0), Vector(0, 0, 1), 16), math.radians(136), math.radians(206)),  # 15
    Part.ArcOfCircle(Part.Circle(Vector(63, -32, 0), Vector(0, 0, 1), 16), math.radians(118), math.radians(188)),  # 16
    Part.ArcOfCircle(Part.Circle(Vector(50, -50, 0), Vector(0, 0, 1), 16), math.radians(100), math.radians(170)),  # 17
    Part.ArcOfCircle(Part.Circle(Vector(32, -63, 0), Vector(0, 0, 1), 16), math.radians(82), math.radians(152)),  # 18
    Part.ArcOfCircle(Part.Circle(Vector(11, -70, 0), Vector(0, 0, 1), 16), math.radians(64), math.radians(134)),  # 19
], False)
sketch23.addConstraint([
    Sketcher.Constraint("Coincident", 0, 2, 1, 1),
    Sketcher.Constraint("Coincident", 1, 2, 2, 1),
    Sketcher.Constraint("Coincident", 2, 2, 3, 1),
    Sketcher.Constraint("Coincident", 3, 2, 4, 1),
    Sketcher.Constraint("Coincident", 4, 2, 5, 1),
    Sketcher.Constraint("Coincident", 5, 2, 6, 1),
    Sketcher.Constraint("Coincident", 6, 2, 7, 1),
    Sketcher.Constraint("Coincident", 7, 2, 8, 1),
    Sketcher.Constraint("Coincident", 8, 2, 9, 1),
    Sketcher.Constraint("Coincident", 9, 2, 10, 1),
    Sketcher.Constraint("Coincident", 10, 2, 11, 1),
    Sketcher.Constraint("Coincident", 11, 2, 12, 1),
    Sketcher.Constraint("Coincident", 12, 2, 13, 1),
    Sketcher.Constraint("Coincident", 13, 2, 14, 1),
    Sketcher.Constraint("Coincident", 14, 2, 15, 1),
    Sketcher.Constraint("Coincident", 15, 2, 16, 1),
    Sketcher.Constraint("Coincident", 16, 2, 17, 1),
    Sketcher.Constraint("Coincident", 17, 2, 18, 1),
    Sketcher.Constraint("Coincident", 18, 2, 19, 1),
    Sketcher.Constraint("Coincident", 19, 2, 0, 1),
    Sketcher.Constraint("Equal", 0, 1),
    Sketcher.Constraint("Equal", 1, 2),
    Sketcher.Constraint("Equal", 2, 3),
    Sketcher.Constraint("Equal", 3, 4),
    Sketcher.Constraint("Equal", 4, 5),
    Sketcher.Constraint("Equal", 5, 6),
    Sketcher.Constraint("Equal", 6, 7),
    Sketcher.Constraint("Equal", 7, 8),
    Sketcher.Constraint("Equal", 8, 9),
    Sketcher.Constraint("Equal", 9, 10),
    Sketcher.Constraint("Equal", 10, 11),
    Sketcher.Constraint("Equal", 11, 12),
    Sketcher.Constraint("Equal", 12, 13),
    Sketcher.Constraint("Equal", 13, 14),
    Sketcher.Constraint("Equal", 14, 15),
    Sketcher.Constraint("Equal", 15, 16),
    Sketcher.Constraint("Equal", 16, 17),
    Sketcher.Constraint("Equal", 17, 18),
    Sketcher.Constraint("Equal", 18, 19),
    Sketcher.Constraint("Symmetric", 0, 3, 10, 3, -1, 1),
    Sketcher.Constraint("Symmetric", 1, 3, 11, 3, -1, 1),
    Sketcher.Constraint("Symmetric", 2, 3, 12, 3, -1, 1),
    Sketcher.Constraint("Symmetric", 3, 3, 13, 3, -1, 1),
    Sketcher.Constraint("Symmetric", 4, 3, 14, 3, -1, 1),
    Sketcher.Constraint("Symmetric", 5, 3, 15, 3, -1, 1),
    Sketcher.Constraint("Symmetric", 6, 3, 16, 3, -1, 1),
    Sketcher.Constraint("Symmetric", 7, 3, 17, 3, -1, 1),
    Sketcher.Constraint("Symmetric", 8, 3, 18, 3, -1, 1),
    Sketcher.Constraint("Symmetric", 9, 3, 19, 3, -1, 1),
    Sketcher.Constraint("Symmetric", 9, 3, 10, 3, -2),
    Sketcher.Constraint("Symmetric", 8, 3, 11, 3, -2),
    Sketcher.Constraint("Symmetric", 7, 3, 12, 3, -2),
    Sketcher.Constraint("Symmetric", 6, 3, 13, 3, -2),
    Sketcher.Constraint("Symmetric", 5, 3, 14, 3, -2),
    Sketcher.Constraint("Radius", 0, 16.156666),
    Sketcher.Constraint("DistanceX", 3, 3, 0, 3, 52.269699),
    Sketcher.Constraint("DistanceY", 1, 3, 4, 3, 52.269699),
    Sketcher.Constraint("DistanceY", 3, 3, 6, 3, 64.608901),
    Sketcher.Constraint("DistanceX", 8, 3, 11, 3, 64.608901),
    Sketcher.Constraint("DistanceY", 0, 2, 1, 2, 8.319301),
    Sketcher.Constraint("DistanceX", 3, 2, 2, 2, 8.319301),
    Sketcher.Constraint("DistanceY", 0, 3, -1, 1, 70.28061),
    Sketcher.Constraint("DistanceX", 2, 3, -1, 1, 50.315361),
    Sketcher.Constraint("DistanceY", 2, 3, -1, 1, 50.315361),
    Sketcher.Constraint("DistanceX", 4, 3, -1, 1, 70.28061),
])
pad23 = body.newObject("PartDesign::Pad", "Pad022")
pad23.Profile = sketch23
pad23.Length = 1
pad23.Reversed = True

doc.recompute()
